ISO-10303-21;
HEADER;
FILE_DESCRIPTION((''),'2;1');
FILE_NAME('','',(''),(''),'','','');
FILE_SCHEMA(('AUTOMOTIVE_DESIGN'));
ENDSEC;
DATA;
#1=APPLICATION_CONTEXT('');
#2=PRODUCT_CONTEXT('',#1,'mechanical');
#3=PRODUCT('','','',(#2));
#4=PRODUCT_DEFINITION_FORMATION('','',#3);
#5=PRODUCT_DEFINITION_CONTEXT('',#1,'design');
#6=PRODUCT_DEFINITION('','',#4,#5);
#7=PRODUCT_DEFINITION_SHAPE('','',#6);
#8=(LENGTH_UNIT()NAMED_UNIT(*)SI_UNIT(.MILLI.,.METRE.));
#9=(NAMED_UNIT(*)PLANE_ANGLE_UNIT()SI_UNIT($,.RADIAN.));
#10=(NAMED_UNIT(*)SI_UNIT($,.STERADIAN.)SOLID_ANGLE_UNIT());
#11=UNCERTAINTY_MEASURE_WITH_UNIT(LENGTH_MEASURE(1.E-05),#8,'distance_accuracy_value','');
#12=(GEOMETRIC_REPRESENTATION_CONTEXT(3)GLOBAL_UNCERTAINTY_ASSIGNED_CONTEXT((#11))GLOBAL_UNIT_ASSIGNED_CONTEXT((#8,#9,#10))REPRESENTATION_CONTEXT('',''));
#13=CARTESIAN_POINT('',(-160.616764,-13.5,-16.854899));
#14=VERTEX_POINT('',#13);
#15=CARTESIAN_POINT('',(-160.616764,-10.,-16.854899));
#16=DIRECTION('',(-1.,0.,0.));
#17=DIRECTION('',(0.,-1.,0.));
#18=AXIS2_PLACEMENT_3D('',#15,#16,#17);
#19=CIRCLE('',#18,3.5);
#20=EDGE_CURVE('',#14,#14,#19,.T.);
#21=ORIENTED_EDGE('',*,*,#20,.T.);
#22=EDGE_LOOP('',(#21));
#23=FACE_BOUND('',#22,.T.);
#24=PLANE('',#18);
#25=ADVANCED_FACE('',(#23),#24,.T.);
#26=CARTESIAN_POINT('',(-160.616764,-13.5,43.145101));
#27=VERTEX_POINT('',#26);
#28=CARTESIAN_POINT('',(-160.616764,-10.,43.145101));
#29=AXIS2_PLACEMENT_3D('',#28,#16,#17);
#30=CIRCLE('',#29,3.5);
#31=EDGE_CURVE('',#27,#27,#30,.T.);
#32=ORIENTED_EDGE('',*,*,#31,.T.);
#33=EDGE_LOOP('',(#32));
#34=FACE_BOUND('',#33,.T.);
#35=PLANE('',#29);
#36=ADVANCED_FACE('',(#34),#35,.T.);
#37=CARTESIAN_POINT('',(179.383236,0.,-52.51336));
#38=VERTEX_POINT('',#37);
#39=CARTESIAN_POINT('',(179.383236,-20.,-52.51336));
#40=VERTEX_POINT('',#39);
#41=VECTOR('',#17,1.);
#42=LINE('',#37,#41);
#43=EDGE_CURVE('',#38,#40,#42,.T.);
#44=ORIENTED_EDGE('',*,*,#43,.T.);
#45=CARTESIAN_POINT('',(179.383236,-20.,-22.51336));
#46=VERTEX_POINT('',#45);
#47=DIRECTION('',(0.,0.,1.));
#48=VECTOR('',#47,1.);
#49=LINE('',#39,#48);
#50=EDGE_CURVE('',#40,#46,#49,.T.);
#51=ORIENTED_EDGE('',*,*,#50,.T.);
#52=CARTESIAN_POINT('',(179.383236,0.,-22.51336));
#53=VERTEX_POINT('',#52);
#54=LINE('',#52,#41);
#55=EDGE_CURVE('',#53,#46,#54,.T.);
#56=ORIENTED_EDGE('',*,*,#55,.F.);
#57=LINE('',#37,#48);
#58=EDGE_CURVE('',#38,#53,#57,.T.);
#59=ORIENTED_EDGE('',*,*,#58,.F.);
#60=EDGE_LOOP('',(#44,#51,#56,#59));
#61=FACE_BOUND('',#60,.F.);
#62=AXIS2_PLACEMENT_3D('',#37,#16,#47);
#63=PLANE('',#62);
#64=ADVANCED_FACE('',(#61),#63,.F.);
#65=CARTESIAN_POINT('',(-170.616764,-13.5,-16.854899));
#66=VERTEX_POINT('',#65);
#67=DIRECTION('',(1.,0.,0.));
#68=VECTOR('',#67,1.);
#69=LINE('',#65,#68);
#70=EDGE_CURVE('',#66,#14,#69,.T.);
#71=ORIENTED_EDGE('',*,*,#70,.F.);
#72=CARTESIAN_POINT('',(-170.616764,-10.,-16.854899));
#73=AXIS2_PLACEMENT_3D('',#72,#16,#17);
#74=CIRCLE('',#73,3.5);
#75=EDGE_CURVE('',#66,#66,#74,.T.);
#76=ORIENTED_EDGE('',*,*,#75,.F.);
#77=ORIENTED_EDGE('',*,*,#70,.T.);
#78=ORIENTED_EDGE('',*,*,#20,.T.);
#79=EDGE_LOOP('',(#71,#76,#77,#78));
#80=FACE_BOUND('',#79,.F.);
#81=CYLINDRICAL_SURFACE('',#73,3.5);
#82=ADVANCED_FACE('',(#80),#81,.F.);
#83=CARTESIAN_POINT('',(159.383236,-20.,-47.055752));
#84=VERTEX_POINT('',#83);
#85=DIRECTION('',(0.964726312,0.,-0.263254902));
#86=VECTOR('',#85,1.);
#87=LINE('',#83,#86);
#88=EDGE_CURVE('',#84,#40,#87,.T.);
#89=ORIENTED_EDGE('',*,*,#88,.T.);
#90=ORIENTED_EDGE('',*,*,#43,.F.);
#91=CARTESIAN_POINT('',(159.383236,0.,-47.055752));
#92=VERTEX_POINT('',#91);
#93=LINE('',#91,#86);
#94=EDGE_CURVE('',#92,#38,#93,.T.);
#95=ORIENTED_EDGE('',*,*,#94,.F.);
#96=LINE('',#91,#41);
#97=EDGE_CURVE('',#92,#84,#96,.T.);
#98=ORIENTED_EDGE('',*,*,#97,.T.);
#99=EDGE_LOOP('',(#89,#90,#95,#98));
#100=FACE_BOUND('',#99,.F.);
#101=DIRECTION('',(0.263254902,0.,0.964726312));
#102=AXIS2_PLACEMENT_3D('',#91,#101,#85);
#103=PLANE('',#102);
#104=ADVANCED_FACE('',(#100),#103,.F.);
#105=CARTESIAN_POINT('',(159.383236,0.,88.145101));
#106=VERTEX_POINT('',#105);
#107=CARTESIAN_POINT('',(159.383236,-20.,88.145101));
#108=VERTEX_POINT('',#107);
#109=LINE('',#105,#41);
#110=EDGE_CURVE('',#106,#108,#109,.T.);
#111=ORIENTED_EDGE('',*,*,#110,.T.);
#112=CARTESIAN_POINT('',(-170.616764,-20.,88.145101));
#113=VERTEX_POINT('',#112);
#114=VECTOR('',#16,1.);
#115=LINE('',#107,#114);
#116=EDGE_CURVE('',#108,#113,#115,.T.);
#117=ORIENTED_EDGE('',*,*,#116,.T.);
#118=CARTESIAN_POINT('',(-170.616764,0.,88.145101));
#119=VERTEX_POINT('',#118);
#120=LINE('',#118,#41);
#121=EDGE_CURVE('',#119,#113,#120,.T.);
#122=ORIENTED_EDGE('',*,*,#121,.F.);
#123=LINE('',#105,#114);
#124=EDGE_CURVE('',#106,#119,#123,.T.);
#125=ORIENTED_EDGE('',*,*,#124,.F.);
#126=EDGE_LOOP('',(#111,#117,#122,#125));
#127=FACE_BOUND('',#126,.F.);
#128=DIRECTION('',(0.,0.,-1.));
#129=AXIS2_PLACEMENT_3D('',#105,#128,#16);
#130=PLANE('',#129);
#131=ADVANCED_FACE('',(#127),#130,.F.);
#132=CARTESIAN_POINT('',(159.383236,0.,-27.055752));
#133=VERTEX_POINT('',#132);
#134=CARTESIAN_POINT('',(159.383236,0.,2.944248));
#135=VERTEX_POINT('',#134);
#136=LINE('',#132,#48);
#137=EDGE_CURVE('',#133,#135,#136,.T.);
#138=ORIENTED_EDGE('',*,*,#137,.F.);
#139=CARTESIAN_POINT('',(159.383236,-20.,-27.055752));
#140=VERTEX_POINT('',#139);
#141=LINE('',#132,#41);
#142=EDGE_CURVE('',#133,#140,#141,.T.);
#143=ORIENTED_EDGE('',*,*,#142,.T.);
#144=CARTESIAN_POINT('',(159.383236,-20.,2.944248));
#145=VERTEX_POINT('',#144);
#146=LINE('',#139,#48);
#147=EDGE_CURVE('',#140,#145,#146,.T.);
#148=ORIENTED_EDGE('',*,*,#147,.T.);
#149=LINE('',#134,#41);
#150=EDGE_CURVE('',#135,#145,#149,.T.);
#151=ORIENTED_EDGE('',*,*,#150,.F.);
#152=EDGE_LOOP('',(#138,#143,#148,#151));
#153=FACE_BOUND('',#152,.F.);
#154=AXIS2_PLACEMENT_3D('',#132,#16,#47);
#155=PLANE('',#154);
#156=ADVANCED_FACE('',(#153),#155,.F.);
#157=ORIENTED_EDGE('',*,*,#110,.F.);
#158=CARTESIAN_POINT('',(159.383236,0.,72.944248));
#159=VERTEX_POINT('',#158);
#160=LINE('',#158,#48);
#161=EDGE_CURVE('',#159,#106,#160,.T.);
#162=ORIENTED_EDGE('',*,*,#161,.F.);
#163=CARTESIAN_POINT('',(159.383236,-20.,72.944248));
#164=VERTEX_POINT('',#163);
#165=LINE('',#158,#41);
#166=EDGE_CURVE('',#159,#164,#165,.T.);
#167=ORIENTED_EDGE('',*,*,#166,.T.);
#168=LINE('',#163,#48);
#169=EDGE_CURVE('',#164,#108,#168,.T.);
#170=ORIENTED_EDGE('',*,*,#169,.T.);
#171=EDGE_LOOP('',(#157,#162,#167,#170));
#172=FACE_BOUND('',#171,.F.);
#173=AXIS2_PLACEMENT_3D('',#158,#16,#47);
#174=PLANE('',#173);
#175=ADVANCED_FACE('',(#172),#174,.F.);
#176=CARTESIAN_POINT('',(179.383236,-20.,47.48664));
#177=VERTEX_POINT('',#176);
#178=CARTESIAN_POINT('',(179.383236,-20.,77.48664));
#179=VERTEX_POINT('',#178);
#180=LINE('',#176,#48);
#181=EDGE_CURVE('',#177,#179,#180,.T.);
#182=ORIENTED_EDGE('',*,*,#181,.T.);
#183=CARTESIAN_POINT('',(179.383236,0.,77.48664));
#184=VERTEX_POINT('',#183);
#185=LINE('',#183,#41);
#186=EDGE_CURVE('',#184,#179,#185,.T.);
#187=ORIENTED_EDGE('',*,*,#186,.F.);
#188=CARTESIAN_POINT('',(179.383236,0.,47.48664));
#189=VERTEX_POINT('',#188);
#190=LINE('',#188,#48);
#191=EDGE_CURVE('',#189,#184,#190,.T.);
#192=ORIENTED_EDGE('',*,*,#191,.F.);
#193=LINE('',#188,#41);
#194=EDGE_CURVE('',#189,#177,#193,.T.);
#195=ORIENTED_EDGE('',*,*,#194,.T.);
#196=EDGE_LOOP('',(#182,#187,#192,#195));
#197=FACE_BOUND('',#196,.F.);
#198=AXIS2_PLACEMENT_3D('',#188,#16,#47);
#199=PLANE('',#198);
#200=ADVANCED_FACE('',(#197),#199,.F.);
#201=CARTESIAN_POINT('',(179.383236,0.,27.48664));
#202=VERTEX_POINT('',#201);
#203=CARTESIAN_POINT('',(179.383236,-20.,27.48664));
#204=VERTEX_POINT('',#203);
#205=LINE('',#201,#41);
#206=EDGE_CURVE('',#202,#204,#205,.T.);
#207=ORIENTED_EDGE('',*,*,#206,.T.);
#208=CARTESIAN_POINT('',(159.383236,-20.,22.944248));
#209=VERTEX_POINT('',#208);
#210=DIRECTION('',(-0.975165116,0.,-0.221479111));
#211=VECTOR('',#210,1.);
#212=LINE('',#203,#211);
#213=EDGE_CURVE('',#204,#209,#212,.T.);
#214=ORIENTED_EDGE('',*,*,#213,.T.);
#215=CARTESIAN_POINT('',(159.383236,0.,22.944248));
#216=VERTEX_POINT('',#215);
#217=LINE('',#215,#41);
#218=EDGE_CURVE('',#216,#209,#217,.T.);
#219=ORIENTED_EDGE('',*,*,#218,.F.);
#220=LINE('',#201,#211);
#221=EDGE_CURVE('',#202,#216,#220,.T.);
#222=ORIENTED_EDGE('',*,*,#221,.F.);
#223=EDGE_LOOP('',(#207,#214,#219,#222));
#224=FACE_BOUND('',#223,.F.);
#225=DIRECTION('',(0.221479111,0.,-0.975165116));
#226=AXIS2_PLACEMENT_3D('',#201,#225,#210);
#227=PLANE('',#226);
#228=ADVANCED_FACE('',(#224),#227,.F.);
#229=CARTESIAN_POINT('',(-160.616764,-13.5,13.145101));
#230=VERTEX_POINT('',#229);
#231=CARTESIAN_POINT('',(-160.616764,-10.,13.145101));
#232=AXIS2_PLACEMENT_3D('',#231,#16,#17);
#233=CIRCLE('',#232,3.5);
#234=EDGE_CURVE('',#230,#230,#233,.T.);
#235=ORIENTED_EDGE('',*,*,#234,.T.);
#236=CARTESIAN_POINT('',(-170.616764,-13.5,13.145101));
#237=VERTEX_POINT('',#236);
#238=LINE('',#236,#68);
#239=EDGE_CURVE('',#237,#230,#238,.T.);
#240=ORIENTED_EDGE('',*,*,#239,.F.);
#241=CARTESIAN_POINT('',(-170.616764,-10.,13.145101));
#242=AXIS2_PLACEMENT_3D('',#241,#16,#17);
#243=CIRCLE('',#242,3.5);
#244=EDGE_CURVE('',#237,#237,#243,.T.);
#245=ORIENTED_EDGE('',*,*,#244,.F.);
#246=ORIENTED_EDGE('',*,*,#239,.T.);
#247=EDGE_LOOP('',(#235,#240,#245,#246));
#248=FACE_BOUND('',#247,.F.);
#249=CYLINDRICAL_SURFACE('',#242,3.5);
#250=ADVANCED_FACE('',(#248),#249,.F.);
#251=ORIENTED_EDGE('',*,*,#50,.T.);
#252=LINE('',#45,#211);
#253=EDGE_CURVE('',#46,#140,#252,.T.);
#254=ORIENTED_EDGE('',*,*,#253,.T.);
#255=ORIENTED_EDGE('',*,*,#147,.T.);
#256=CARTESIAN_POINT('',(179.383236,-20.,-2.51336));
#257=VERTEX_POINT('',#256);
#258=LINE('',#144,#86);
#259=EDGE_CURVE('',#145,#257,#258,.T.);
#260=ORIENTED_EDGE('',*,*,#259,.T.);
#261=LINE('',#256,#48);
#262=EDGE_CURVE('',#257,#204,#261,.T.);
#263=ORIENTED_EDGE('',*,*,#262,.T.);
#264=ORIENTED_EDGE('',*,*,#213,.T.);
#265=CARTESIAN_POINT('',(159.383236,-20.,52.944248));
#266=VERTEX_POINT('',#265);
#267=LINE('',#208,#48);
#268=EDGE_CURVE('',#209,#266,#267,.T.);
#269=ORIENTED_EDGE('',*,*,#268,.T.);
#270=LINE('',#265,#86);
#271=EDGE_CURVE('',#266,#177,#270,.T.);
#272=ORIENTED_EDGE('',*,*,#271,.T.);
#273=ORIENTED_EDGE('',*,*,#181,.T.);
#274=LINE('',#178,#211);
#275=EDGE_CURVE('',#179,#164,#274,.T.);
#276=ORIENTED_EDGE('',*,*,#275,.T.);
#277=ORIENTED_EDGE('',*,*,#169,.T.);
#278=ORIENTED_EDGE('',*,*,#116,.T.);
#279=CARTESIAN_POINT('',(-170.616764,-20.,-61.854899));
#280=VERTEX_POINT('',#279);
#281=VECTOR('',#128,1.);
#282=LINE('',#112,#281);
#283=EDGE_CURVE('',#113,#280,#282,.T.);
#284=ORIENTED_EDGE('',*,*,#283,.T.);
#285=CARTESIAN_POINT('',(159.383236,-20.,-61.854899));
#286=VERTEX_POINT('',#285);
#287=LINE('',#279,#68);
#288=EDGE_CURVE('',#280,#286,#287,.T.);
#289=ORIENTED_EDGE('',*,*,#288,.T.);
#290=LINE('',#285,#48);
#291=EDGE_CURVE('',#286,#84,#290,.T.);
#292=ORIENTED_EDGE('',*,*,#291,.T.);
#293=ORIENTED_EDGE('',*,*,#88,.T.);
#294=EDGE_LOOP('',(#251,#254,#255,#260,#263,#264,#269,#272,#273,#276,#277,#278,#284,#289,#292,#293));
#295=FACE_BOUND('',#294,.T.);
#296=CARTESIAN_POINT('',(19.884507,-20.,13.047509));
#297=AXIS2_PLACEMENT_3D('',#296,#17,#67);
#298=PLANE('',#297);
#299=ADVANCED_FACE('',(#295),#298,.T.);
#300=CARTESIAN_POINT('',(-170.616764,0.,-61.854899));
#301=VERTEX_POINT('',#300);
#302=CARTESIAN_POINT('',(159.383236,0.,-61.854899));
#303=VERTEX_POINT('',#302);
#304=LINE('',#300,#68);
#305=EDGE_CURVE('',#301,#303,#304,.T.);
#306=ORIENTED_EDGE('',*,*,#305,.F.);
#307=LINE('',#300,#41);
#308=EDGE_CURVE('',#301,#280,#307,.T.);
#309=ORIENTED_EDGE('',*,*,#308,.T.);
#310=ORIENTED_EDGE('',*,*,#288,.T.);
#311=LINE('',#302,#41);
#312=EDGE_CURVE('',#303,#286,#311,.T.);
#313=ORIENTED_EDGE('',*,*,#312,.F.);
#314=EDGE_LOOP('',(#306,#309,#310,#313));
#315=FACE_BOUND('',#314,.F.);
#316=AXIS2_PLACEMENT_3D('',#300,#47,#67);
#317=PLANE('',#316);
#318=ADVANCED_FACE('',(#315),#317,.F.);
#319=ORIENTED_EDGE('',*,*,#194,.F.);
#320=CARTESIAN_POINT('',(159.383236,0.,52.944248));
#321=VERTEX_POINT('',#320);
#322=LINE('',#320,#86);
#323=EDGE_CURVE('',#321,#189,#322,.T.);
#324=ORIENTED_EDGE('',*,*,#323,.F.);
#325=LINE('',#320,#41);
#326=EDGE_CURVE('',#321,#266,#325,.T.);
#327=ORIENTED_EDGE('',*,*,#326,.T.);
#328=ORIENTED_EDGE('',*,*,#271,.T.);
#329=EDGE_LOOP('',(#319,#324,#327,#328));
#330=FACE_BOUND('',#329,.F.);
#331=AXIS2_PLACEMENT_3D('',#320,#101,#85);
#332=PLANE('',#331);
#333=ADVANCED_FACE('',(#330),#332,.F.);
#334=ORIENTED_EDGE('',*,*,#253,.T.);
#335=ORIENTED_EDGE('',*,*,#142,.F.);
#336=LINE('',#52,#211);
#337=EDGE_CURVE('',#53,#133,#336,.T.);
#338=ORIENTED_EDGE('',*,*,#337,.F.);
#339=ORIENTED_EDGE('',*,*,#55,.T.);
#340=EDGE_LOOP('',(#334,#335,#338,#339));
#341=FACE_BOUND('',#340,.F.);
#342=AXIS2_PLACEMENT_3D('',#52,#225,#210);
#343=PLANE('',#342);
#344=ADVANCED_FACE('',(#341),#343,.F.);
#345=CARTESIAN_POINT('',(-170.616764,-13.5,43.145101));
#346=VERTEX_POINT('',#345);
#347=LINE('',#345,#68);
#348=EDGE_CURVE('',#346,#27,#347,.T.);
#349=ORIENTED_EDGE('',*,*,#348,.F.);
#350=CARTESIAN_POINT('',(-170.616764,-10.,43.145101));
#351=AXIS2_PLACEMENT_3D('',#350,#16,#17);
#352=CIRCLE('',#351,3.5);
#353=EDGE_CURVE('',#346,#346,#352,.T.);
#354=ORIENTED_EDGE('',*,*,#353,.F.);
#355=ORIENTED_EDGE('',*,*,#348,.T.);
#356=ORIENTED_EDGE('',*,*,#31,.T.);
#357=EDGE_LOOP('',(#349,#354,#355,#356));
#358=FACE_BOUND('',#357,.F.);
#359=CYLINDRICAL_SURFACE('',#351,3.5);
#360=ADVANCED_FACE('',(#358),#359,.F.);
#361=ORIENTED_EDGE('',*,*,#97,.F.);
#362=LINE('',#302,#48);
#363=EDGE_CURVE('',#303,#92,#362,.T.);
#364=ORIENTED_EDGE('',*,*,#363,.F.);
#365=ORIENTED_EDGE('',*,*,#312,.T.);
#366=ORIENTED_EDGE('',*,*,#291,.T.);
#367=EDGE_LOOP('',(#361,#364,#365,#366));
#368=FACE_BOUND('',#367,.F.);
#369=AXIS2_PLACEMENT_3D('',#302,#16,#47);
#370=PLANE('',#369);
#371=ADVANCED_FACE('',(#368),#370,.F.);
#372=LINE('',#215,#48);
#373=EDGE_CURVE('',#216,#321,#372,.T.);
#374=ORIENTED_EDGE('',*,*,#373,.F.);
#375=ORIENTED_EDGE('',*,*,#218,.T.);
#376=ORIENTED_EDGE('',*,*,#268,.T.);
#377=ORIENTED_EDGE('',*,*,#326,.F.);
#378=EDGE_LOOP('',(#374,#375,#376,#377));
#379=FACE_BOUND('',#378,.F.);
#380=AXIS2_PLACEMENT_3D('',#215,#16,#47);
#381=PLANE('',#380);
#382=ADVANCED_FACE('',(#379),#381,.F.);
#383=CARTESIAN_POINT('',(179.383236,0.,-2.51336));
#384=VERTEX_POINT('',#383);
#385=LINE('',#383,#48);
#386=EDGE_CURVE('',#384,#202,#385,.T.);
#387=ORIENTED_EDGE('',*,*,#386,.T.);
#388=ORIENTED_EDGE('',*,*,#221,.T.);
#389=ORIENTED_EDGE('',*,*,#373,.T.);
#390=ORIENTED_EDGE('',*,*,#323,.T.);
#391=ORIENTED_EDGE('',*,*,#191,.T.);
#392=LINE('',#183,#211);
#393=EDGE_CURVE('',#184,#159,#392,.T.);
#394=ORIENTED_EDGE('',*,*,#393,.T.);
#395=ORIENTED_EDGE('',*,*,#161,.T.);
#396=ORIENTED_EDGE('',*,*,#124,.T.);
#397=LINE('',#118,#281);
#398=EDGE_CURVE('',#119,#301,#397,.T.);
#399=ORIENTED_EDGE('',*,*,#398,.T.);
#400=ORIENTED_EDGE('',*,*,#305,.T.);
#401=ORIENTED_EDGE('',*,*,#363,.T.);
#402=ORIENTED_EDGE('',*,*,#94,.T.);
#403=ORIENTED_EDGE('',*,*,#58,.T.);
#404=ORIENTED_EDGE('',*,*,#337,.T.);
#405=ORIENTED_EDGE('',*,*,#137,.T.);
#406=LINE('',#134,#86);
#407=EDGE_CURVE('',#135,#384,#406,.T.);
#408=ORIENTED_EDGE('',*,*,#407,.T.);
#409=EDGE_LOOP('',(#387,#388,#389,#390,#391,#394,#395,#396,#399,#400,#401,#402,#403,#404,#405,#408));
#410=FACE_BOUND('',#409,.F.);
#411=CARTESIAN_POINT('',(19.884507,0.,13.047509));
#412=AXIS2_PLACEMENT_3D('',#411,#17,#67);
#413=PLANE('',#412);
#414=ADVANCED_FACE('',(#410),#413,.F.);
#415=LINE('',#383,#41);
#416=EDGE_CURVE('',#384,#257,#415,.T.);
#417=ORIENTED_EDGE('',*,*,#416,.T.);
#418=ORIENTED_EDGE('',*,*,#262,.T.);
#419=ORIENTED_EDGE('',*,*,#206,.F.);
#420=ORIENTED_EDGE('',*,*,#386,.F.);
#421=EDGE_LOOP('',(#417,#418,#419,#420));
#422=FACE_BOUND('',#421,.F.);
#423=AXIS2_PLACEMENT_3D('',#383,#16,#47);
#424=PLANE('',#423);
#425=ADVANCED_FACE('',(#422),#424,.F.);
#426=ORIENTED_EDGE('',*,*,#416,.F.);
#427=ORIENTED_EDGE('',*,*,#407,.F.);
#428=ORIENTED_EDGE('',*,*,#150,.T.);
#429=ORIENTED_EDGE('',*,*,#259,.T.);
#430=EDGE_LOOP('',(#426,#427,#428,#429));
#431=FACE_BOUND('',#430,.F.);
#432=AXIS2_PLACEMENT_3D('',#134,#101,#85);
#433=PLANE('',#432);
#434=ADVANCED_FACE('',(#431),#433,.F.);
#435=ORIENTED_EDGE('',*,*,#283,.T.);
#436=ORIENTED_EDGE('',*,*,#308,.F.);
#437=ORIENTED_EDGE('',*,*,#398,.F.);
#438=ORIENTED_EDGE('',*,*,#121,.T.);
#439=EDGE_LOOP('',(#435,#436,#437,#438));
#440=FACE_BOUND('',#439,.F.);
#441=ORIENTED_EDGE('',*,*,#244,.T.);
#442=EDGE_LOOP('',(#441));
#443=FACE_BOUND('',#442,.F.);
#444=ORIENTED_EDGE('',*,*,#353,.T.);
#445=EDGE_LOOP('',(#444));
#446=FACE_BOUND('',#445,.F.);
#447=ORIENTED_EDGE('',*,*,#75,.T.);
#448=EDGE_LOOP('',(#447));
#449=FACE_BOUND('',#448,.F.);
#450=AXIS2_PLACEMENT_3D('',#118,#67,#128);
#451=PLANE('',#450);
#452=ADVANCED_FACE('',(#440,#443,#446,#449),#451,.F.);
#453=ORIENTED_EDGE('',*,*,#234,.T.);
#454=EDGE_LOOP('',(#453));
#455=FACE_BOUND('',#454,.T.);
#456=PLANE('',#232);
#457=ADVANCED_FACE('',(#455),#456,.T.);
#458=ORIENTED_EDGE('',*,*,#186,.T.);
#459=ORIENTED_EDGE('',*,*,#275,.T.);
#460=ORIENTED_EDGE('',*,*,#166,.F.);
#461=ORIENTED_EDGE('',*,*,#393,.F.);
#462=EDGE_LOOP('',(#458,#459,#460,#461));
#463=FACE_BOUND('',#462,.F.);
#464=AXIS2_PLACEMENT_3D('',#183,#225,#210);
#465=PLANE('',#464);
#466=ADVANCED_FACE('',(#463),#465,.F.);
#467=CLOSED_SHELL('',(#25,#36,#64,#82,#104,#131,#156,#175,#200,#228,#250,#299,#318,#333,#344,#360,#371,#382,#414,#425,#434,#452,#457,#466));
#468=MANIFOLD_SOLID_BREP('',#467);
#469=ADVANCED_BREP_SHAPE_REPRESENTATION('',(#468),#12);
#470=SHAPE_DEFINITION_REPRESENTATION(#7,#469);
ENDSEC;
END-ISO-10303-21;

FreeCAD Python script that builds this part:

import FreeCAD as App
import Part
import Sketcher
from FreeCAD import Vector


def add_polygon(sketch, points):
    """Adds a closed chain of lines whose ends are joined by coincident constraints."""
    first, n = sketch.GeometryCount, len(points)
    for a, b in zip(points, points[1:] + points[:1]):
        sketch.addGeometry(Part.LineSegment(App.Vector(*a, 0), App.Vector(*b, 0)), False)
    for i in range(n):
        sketch.addConstraint(Sketcher.Constraint("Coincident", first + i, 2, first + (i + 1) % n, 1))

doc = App.newDocument("Part")
body = doc.addObject("PartDesign::Body", "Body")

# Sketch on XZ plane
sketch1 = doc.addObject("Sketcher::SketchObject", "Sketch")
body.addObject(sketch1)
sketch1.AttachmentSupport = (doc.XZ_Plane, [""])
sketch1.MapMode = "FlatFace"
add_polygon(sketch1, [(-171, -62), (159, -62), (159, -47), (179, -53), (179, -23), (159, -27), (159, 3), (179, -3), (179, 27), (159, 23), (159, 53), (179, 47), (179, 77), (159, 73), (159, 88), (-171, 88)])  # lines 0-15
sketch1.addConstraint([
    Sketcher.Constraint("Horizontal", 0),
    Sketcher.Constraint("Vertical", 1),
    Sketcher.Constraint("Vertical", 3),
    Sketcher.Constraint("Vertical", 5),
    Sketcher.Constraint("Vertical", 7),
    Sketcher.Constraint("Vertical", 9),
    Sketcher.Constraint("Vertical", 11),
    Sketcher.Constraint("Vertical", 13),
    Sketcher.Constraint("Horizontal", 14),
    Sketcher.Constraint("Vertical", 15),
    Sketcher.Constraint("Parallel", 2, 6),
    Sketcher.Constraint("Parallel", 4, 8),
    Sketcher.Constraint("Parallel", 6, 10),
    Sketcher.Constraint("Parallel", 8, 12),
    Sketcher.Constraint("Vertical", 1, 2, 4, 2),
    Sketcher.Constraint("Vertical", 3, 2, 6, 2),
    Sketcher.Constraint("Vertical", 5, 2, 8, 2),
    Sketcher.Constraint("Vertical", 7, 2, 10, 2),
    Sketcher.Constraint("Vertical", 9, 2, 12, 2),
    Sketcher.Constraint("Equal", 3, 5),
    Sketcher.Constraint("Equal", 5, 7),
    Sketcher.Constraint("Equal", 7, 9),
    Sketcher.Constraint("Equal", 9, 11),
    Sketcher.Constraint("DistanceX", 0, 1, 0, 2, 330.0),
    Sketcher.Constraint("DistanceY", 3, 1, 3, 2, 30.0),
    Sketcher.Constraint("DistanceY", 15, 2, 15, 1, 150.0),
    Sketcher.Constraint("DistanceX", 1, 2, 2, 2, 20.0),
    Sketcher.Constraint("DistanceY", 1, 2, 4, 2, 20.0),
    Sketcher.Constraint("DistanceY", 0, 2, -1, 1, 61.854899),
    Sketcher.Constraint("Distance", 2, 20.731268),
    Sketcher.Constraint("DistanceY", 1, 1, 1, 2, 14.799147),
    Sketcher.Constraint("DistanceX", -1, 1, 0, 2, 159.383236),
])
pad1 = doc.addObject("PartDesign::Pad", "Pad")
body.addObject(pad1)
pad1.Profile = sketch1
pad1.Length = 20

# Sketch on YZ plane
sketch2 = doc.addObject("Sketcher::SketchObject", "Sketch001")
body.addObject(sketch2)
sketch2.AttachmentSupport = (doc.YZ_Plane, [""])
sketch2.MapMode = "FlatFace"
sketch2.AttachmentOffset = App.Placement(Vector(0, 0, -170.616764), App.Rotation())
sketch2.addGeometry([
    Part.Circle(Vector(-10, 13.1, 0), Vector(0, 0, 1), 3.5),
    Part.Circle(Vector(-10, 43.1, 0), Vector(0, 0, 1), 3.5),
    Part.Circle(Vector(-10, -16.9, 0), Vector(0, 0, 1), 3.5),
], False)
sketch2.addConstraint([
    Sketcher.Constraint("Equal", 0, 1),
    Sketcher.Constraint("Equal", 1, 2),
    Sketcher.Constraint("Vertical", 0, 3, 1, 3),
    Sketcher.Constraint("Vertical", 1, 3, 2, 3),
    Sketcher.Constraint("Diameter", 0, 7.0),
    Sketcher.Constraint("DistanceX", 0, 3, -1, 1, 10.0),
    Sketcher.Constraint("DistanceY", 0, 3, 1, 3, 30.0),
    Sketcher.Constraint("DistanceY", 2, 3, 0, 3, 30.0),
    Sketcher.Constraint("DistanceY", -1, 1, 0, 3, 13.145101),
])
pocket1 = doc.addObject("PartDesign::Pocket", "Pocket")
body.addObject(pocket1)
pocket1.Profile = sketch2
pocket1.Length = 10
pocket1.Reversed = True

doc.recompute()
